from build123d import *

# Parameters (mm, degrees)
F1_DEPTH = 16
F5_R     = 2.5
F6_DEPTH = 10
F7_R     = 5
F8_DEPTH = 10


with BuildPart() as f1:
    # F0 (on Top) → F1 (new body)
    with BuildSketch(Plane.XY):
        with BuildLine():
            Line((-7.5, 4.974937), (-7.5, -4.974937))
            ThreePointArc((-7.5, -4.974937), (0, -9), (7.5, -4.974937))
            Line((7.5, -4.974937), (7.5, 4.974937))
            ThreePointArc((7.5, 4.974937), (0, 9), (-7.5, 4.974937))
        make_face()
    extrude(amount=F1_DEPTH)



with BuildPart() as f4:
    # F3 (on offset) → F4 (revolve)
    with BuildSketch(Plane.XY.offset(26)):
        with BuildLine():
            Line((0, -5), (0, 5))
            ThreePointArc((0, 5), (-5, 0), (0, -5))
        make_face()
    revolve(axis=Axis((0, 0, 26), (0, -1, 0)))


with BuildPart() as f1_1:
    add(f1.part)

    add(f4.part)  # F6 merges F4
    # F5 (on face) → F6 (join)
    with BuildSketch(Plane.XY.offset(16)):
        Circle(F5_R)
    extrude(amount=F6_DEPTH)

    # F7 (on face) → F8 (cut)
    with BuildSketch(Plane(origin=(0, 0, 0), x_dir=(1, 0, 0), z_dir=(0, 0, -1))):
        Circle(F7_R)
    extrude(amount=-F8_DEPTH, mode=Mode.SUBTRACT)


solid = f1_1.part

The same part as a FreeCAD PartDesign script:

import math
import FreeCAD as App
import Part
import Sketcher
from FreeCAD import Vector

doc = App.newDocument("Part")
body = doc.addObject("PartDesign::Body", "Body")

sketch1 = doc.addObject("Sketcher::SketchObject", "Sketch")
body.addObject(sketch1)
sketch1.AttachmentSupport = (doc.XY_Plane, [""])
sketch1.MapMode = "FlatFace"
sketch1.addGeometry([
    Part.LineSegment(Vector(-8, 5, 0), Vector(-8, -5, 0)),
    Part.ArcOfCircle(Part.Circle(Vector(0, 0, 0), Vector(0, 0, 1), 9), math.radians(-146), math.radians(-34)),
    Part.LineSegment(Vector(8, -5, 0), Vector(8, 5, 0)),
    Part.ArcOfCircle(Part.Circle(Vector(0, 0, 0), Vector(0, 0, 1), 9), math.radians(34), math.radians(146)),
], False)
sketch1.addConstraint([
    Sketcher.Constraint("Coincident", 0, 2, 1, 1),
    Sketcher.Constraint("Coincident", 1, 2, 2, 1),
    Sketcher.Constraint("Coincident", 2, 2, 3, 1),
    Sketcher.Constraint("Coincident", 3, 2, 0, 1),
    Sketcher.Constraint("Vertical", 0),
    Sketcher.Constraint("Vertical", 2),
    Sketcher.Constraint("Coincident", 1, 3, -1, 1),
    Sketcher.Constraint("Coincident", 3, 3, -1, 1),
    Sketcher.Constraint("Equal", 1, 3),
    Sketcher.Constraint("Horizontal", 0, 2, 1, 2),
    Sketcher.Constraint("Radius", 1, 9.0),
    Sketcher.Constraint("DistanceX", 0, 2, 1, 2, 15.0),
])
pad1 = doc.addObject("PartDesign::Pad", "Pad")
body.addObject(pad1)
pad1.Profile = sketch1
pad1.Length = 16
body2 = doc.addObject("PartDesign::Body", "Body001")

sketch2 = doc.addObject("Sketcher::SketchObject", "Sketch001")
body2.addObject(sketch2)
sketch2.AttachmentSupport = (doc.getObject("XY_Plane001"), [""])
sketch2.MapMode = "FlatFace"
sketch2.AttachmentOffset = App.Placement(Vector(0, 0, 26), App.Rotation())
sketch2.addGeometry([
    Part.LineSegment(Vector(0, -5, 0), Vector(0, 5, 0)),
    Part.ArcOfCircle(Part.Circle(Vector(0, 0, 0), Vector(0, 0, 1), 5), math.radians(90), math.radians(270)),
], False)
sketch2.addConstraint([
    Sketcher.Constraint("Coincident", 0, 1, 1, 2),
    Sketcher.Constraint("Coincident", 1, 1, 0, 2),
    Sketcher.Constraint("Vertical", 0),
    Sketcher.Constraint("Coincident", 1, 3, -1, 1),
    Sketcher.Constraint("PointOnObject", 0, 1, -2),
    Sketcher.Constraint("Radius", 1, 5.0),
])
revolution = doc.addObject("PartDesign::Revolution", "Revolution")
body2.addObject(revolution)
revolution.Profile = sketch2
revolution.ReferenceAxis = (sketch2, ["V_Axis"])
revolution.Angle = 360
body.AllowCompound = True
doc.recompute()

boolean = doc.addObject("PartDesign::Boolean", "Boolean")
body.addObject(boolean)
boolean.Type = "Fuse"
boolean.addObjects([body2])

sketch3 = doc.addObject("Sketcher::SketchObject", "Sketch002")
body.addObject(sketch3)
sketch3.AttachmentSupport = (doc.XY_Plane, [""])
sketch3.MapMode = "FlatFace"
sketch3.AttachmentOffset = App.Placement(Vector(0, 0, 16), App.Rotation())
sketch3.addGeometry(Part.Circle(Vector(0, 0, 0), Vector(0, 0, 1), 2.5), False)
sketch3.addConstraint([
    Sketcher.Constraint("Coincident", 0, 3, -1, 1),
    Sketcher.Constraint("Diameter", 0, 5.0),
])
pad2 = doc.addObject("PartDesign::Pad", "Pad001")
body.addObject(pad2)
pad2.Profile = sketch3
pad2.Length = 10

sketch4 = doc.addObject("Sketcher::SketchObject", "Sketch003")
body.addObject(sketch4)
sketch4.AttachmentSupport = (doc.XY_Plane, [""])
sketch4.MapMode = "FlatFace"
sketch4.addGeometry(Part.Circle(Vector(0, 0, 0), Vector(0, 0, 1), 5), False)
sketch4.addConstraint([
    Sketcher.Constraint("Coincident", 0, 3, -1, 1),
    Sketcher.Constraint("Diameter", 0, 10.0),
])
pocket1 = doc.addObject("PartDesign::Pocket", "Pocket")
body.addObject(pocket1)
pocket1.Profile = sketch4
pocket1.Length = 10
pocket1.Reversed = True

doc.recompute()
